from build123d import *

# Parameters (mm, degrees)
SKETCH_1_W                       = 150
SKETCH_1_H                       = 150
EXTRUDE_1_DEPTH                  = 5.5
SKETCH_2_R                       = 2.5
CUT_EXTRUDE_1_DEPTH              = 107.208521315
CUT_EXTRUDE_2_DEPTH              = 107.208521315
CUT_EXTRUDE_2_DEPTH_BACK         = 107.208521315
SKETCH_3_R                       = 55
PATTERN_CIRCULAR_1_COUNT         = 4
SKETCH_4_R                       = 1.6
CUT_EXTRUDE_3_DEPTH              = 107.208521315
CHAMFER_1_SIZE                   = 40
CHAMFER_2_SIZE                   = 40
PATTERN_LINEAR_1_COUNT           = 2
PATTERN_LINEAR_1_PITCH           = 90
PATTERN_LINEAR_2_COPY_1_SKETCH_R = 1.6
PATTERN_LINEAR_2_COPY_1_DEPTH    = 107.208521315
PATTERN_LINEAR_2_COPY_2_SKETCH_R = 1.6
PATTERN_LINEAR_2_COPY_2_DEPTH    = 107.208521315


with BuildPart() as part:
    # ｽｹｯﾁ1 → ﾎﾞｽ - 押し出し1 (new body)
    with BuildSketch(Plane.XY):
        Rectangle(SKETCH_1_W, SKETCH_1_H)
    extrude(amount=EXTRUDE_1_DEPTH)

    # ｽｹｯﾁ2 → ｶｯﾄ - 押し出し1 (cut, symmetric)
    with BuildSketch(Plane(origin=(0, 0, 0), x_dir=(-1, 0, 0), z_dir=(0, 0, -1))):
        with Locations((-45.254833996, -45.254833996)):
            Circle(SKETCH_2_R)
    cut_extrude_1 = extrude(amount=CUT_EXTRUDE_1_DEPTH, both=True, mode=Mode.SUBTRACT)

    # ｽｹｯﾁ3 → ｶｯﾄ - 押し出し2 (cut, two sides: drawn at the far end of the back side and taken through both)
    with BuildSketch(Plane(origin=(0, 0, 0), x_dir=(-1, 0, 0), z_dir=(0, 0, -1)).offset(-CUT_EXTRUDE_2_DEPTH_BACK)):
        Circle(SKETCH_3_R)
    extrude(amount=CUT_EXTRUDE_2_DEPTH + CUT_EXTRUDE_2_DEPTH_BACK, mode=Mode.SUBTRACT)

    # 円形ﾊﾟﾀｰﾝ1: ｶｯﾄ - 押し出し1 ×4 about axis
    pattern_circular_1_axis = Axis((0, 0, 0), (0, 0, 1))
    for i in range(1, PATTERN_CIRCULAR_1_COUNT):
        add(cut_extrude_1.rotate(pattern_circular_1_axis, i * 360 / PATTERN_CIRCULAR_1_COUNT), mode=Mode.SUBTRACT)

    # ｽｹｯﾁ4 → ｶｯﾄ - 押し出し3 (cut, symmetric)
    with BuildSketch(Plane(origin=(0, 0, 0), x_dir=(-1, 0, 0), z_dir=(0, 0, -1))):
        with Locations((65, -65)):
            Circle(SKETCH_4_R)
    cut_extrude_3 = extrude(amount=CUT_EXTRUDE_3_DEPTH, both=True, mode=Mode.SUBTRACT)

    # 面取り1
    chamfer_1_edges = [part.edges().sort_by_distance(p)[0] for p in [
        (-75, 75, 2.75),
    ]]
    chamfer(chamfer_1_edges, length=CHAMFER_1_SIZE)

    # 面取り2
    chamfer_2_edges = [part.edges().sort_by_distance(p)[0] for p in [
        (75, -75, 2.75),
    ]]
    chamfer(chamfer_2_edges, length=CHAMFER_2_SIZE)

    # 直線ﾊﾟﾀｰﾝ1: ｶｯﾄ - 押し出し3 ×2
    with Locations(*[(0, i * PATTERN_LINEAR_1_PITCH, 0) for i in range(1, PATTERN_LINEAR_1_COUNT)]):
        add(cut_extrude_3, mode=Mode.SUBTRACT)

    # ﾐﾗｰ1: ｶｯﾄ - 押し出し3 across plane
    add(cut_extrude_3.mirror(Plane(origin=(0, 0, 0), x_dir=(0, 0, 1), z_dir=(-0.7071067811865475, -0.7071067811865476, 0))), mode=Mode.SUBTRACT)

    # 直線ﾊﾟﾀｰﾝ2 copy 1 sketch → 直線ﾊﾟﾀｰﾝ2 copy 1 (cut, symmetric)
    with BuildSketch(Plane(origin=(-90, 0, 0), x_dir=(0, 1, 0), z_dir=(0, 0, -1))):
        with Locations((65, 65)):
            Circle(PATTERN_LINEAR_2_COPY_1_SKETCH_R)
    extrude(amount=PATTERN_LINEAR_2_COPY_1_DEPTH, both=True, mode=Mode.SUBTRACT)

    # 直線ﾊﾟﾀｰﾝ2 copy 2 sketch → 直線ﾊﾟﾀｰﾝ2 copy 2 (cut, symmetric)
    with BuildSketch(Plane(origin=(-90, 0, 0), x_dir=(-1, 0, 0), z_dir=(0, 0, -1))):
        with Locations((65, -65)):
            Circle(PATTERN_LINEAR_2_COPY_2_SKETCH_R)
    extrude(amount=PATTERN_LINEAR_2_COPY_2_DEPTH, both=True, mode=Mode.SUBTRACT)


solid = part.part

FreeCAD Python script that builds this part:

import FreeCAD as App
import Part
import Sketcher
from FreeCAD import Vector
Q = App.Units.Quantity


def edges_at(feature, points):
    """Names of the edges that pass closest to the given points."""
    edges = feature.Shape.Edges
    near = lambda p: min(range(len(edges)), key=lambda i: edges[i].distToShape(Part.Vertex(*p))[0])
    return sorted({f"Edge{near(p) + 1}" for p in points})

doc = App.newDocument("Part")
params = doc.addObject("Spreadsheet::Sheet", "Params")
for row, (alias, value) in enumerate([
    ("sketch1_width", "150 mm"),
    ("pad1_length", "5.5 mm"),
    ("sketch2_diameter", "5 mm"),
    ("pocket1_length", "214.417043 mm"),
    ("sketch3_diameter", "110 mm"),
    ("sketch4_diameter", "3.2 mm"),
    ("pocket3_length", "214.417043 mm"),
    ("chamfer_size", "40 mm"),
    ("chamfer2_size", "40 mm"),
    ("linearpattern_pitch", "90 mm"),
    ("sketch5_diameter", "3.2 mm"),
    ("pocket4_length", "214.417043 mm"),
    ("sketch6_diameter", "3.2 mm"),
    ("pocket5_length", "214.417043 mm"),
], start=1):
    params.set(f"A{row}", alias)
    params.set(f"B{row}", "=" + value)
    params.setAlias(f"B{row}", alias)

body = doc.addObject("PartDesign::Body", "Body")

sketch1 = body.newObject("Sketcher::SketchObject", "Sketch")
sketch1.AttachmentSupport = (doc.getObject("XY_Plane"), [""])
sketch1.MapMode = "FlatFace"
sketch1.addGeometry([
    Part.LineSegment(Vector(-75, 75, 0), Vector(-75, -75, 0)),
    Part.LineSegment(Vector(-75, -75, 0), Vector(75, -75, 0)),
    Part.LineSegment(Vector(75, -75, 0), Vector(75, 75, 0)),
    Part.LineSegment(Vector(75, 75, 0), Vector(-75, 75, 0)),
], False)
sketch1.addConstraint([
    Sketcher.Constraint("Coincident", 0, 2, 1, 1),
    Sketcher.Constraint("Coincident", 1, 2, 2, 1),
    Sketcher.Constraint("Coincident", 2, 2, 3, 1),
    Sketcher.Constraint("Coincident", 3, 2, 0, 1),
    Sketcher.Constraint("Vertical", 0),
    Sketcher.Constraint("Horizontal", 1),
    Sketcher.Constraint("Vertical", 2),
    Sketcher.Constraint("Horizontal", 3),
    Sketcher.Constraint("Symmetric", 0, 2, 2, 2, -1, 1),
    Sketcher.Constraint("Equal", 3, 0),
    Sketcher.Constraint("DistanceX", 1, 1, 1, 2, Q("150 mm")),
])
sketch1.setExpression("Constraints[10]", "Params.sketch1_width")
pad1 = body.newObject("PartDesign::Pad", "Pad")
pad1.Profile = sketch1
pad1.setExpression("Length", "Params.pad1_length")

sketch2 = body.newObject("Sketcher::SketchObject", "Sketch001")
sketch2.AttachmentSupport = (doc.getObject("XY_Plane"), [""])
sketch2.MapMode = "FlatFace"
sketch2.addGeometry(Part.Circle(Vector(45.3, -45.3, 0), Vector(0, 0, 1), 2.5), False)
sketch2.addConstraint([
    Sketcher.Constraint("Diameter", 0, Q("5 mm")),
    Sketcher.Constraint("DistanceX", -1, 1, 0, 3, Q("45.254834 mm")),
    Sketcher.Constraint("DistanceY", 0, 3, -1, 1, Q("45.254834 mm")),
])
sketch2.setExpression("Constraints[0]", "Params.sketch2_diameter")
pocket1 = body.newObject("PartDesign::Pocket", "Pocket")
pocket1.Profile = sketch2
pocket1.setExpression("Length", "Params.pocket1_length")
pocket1.Midplane = True

sketch3 = body.newObject("Sketcher::SketchObject", "Sketch002")
sketch3.AttachmentSupport = (doc.getObject("XY_Plane"), [""])
sketch3.MapMode = "FlatFace"
sketch3.addGeometry(Part.Circle(Vector(0, 0, 0), Vector(0, 0, 1), 55), False)
sketch3.addConstraint([
    Sketcher.Constraint("Coincident", 0, 3, -1, 1),
    Sketcher.Constraint("Diameter", 0, Q("110 mm")),
])
sketch3.setExpression("Constraints[1]", "Params.sketch3_diameter")
pocket2 = body.newObject("PartDesign::Pocket", "Pocket001")
pocket2.Profile = sketch3
pocket2.Type = "ThroughAll"
pocket2.Midplane = True
doc.recompute()

polarpattern = body.newObject("PartDesign::PolarPattern", "PolarPattern")
polarpattern.Originals = [pocket1]
polarpattern.Axis = (doc.getObject("Z_Axis"), [""])
polarpattern.Angle = 360
polarpattern.Occurrences = 4
body.Tip = polarpattern

sketch4 = body.newObject("Sketcher::SketchObject", "Sketch003")
sketch4.AttachmentSupport = (doc.getObject("XY_Plane"), [""])
sketch4.MapMode = "FlatFace"
sketch4.addGeometry(Part.Circle(Vector(-65, -65, 0), Vector(0, 0, 1), 1.6), False)
sketch4.addConstraint([
    Sketcher.Constraint("Diameter", 0, Q("3.2 mm")),
    Sketcher.Constraint("DistanceX", 0, 3, -1, 1, Q("65 mm")),
    Sketcher.Constraint("DistanceY", 0, 3, -1, 1, Q("65 mm")),
])
sketch4.setExpression("Constraints[0]", "Params.sketch4_diameter")
pocket3 = body.newObject("PartDesign::Pocket", "Pocket002")
pocket3.Profile = sketch4
pocket3.setExpression("Length", "Params.pocket3_length")
pocket3.Midplane = True
doc.recompute()

chamfer = body.newObject("PartDesign::Chamfer", "Chamfer")
chamfer.Base = (pocket3, edges_at(pocket3, [(-75, 75, 2.75)]))
chamfer.setExpression("Size", "Params.chamfer_size")
doc.recompute()

chamfer2 = body.newObject("PartDesign::Chamfer", "Chamfer001")
chamfer2.Base = (chamfer, edges_at(chamfer, [(75, -75, 2.75)]))
chamfer2.setExpression("Size", "Params.chamfer2_size")
doc.recompute()

linearpattern = body.newObject("PartDesign::LinearPattern", "LinearPattern")
linearpattern.Originals = [pocket3]
linearpattern.Direction = (doc.getObject("Y_Axis"), [""])
linearpattern.Mode = "offset"
linearpattern.setExpression("Offset", "Params.linearpattern_pitch")
linearpattern.Occurrences = 2
body.Tip = linearpattern
doc.recompute()

datumplane = body.newObject("PartDesign::Plane", "DatumPlane")
datumplane.Placement = App.Placement(Vector(0, 0, 0), App.Rotation(Vector(-0.707106781, 0.707106781, 0), Vector(0, 0, -1), Vector(-0.707106781, -0.707106781, 0), "ZXY"))
mirrored = body.newObject("PartDesign::Mirrored", "Mirrored")
mirrored.Originals = [pocket3]
mirrored.MirrorPlane = (datumplane, [""])
body.Tip = mirrored

sketch5 = body.newObject("Sketcher::SketchObject", "Sketch004")
sketch5.AttachmentSupport = (doc.getObject("XY_Plane"), [""])
sketch5.MapMode = "FlatFace"
sketch5.addGeometry(Part.Circle(Vector(-25, 65, 0), Vector(0, 0, 1), 1.6), False)
sketch5.addConstraint([
    Sketcher.Constraint("Diameter", 0, Q("3.2 mm")),
    Sketcher.Constraint("DistanceX", 0, 3, -1, 1, Q("25 mm")),
    Sketcher.Constraint("DistanceY", -1, 1, 0, 3, Q("65 mm")),
])
sketch5.setExpression("Constraints[0]", "Params.sketch5_diameter")
pocket4 = body.newObject("PartDesign::Pocket", "Pocket003")
pocket4.Profile = sketch5
pocket4.setExpression("Length", "Params.pocket4_length")
pocket4.Midplane = True

sketch6 = body.newObject("Sketcher::SketchObject", "Sketch005")
sketch6.AttachmentSupport = (doc.getObject("XY_Plane"), [""])
sketch6.MapMode = "FlatFace"
sketch6.addGeometry(Part.Circle(Vector(-155, -65, 0), Vector(0, 0, 1), 1.6), False)
sketch6.addConstraint([
    Sketcher.Constraint("Diameter", 0, Q("3.2 mm")),
    Sketcher.Constraint("DistanceX", 0, 3, -1, 1, Q("155 mm")),
    Sketcher.Constraint("DistanceY", 0, 3, -1, 1, Q("65 mm")),
])
sketch6.setExpression("Constraints[0]", "Params.sketch6_diameter")
pocket5 = body.newObject("PartDesign::Pocket", "Pocket004")
pocket5.Profile = sketch6
pocket5.setExpression("Length", "Params.pocket5_length")
pocket5.Midplane = True

doc.recompute()
